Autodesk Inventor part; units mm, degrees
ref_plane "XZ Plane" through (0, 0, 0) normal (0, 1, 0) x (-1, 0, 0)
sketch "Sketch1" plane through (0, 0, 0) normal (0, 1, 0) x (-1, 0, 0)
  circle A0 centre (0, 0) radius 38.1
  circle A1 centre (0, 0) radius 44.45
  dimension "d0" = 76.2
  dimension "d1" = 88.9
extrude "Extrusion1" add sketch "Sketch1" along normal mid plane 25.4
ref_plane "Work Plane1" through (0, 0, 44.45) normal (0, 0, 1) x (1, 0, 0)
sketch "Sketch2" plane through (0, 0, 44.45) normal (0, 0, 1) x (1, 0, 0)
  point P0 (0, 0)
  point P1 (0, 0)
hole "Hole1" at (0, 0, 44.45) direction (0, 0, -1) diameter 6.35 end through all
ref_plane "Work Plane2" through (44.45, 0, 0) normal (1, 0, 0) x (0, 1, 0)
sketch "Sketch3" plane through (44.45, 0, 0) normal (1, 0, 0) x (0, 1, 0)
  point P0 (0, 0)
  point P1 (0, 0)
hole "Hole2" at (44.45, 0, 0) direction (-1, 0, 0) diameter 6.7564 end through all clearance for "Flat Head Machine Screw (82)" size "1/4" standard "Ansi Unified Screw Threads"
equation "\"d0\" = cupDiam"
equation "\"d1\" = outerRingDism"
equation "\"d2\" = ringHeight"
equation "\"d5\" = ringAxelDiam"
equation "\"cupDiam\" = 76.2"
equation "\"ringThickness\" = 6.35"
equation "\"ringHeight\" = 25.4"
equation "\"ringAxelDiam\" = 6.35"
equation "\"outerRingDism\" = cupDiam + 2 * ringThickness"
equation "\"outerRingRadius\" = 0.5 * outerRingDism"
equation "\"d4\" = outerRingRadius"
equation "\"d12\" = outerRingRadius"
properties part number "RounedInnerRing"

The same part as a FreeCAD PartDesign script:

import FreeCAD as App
import Part
import Sketcher

V = App.Vector
Q = App.Units.Quantity

doc = App.newDocument("Part")
body = doc.addObject("PartDesign::Body", "Body")

sketch1 = body.newObject("Sketcher::SketchObject", "Sketch")
sketch1.AttachmentSupport = (doc.getObject("XZ_Plane"), [""])
sketch1.MapMode = "FlatFace"
sketch1.addGeometry(Part.Circle(V(0, 0, 0), V(0, 0, 1), 44.45), False)
sketch1.addGeometry(Part.Circle(V(0, 0, 0), V(0, 0, 1), 38.1), False)
sketch1.addConstraint(Sketcher.Constraint("Coincident", 0, 3, -1, 1))
sketch1.addConstraint(Sketcher.Constraint("Coincident", 1, 3, -1, 1))
sketch1.addConstraint(Sketcher.Constraint("Diameter", 1, Q("3 in")))
sketch1.addConstraint(Sketcher.Constraint("Diameter", 0, Q("3.5 in")))
pad1 = body.newObject("PartDesign::Pad", "Pad")
pad1.Profile = sketch1
pad1.Length = Q("1 in")
pad1.Midplane = True

sketch2 = body.newObject("Sketcher::SketchObject", "Sketch001")
sketch2.AttachmentSupport = (doc.getObject("XY_Plane"), [""])
sketch2.MapMode = "FlatFace"
sketch2.AttachmentOffset = App.Placement(V(0, 0, 1.75 * 25.4), App.Rotation())
sketch2.addGeometry(Part.Circle(V(0, 0, 0), V(0, 0, 1), 3.175), False)
sketch2.addConstraint(Sketcher.Constraint("Coincident", 0, 3, -1, 1))
sketch2.addConstraint(Sketcher.Constraint("Diameter", 0, Q("0.25 in")))
doc.recompute()
hole = body.newObject("PartDesign::Hole", "Hole")
hole.Profile = sketch2
hole.ThreadType = "None"
hole.Diameter = Q("0.25 in")
hole.DepthType = "ThroughAll"

sketch3 = body.newObject("Sketcher::SketchObject", "Sketch002")
sketch3.AttachmentSupport = (doc.getObject("YZ_Plane"), [""])
sketch3.MapMode = "FlatFace"
sketch3.AttachmentOffset = App.Placement(V(0, 0, 1.75 * 25.4), App.Rotation())
sketch3.addGeometry(Part.Circle(V(0, 0, 0), V(0, 0, 1), 3.3782), False)
sketch3.addConstraint(Sketcher.Constraint("Coincident", 0, 3, -1, 1))
sketch3.addConstraint(Sketcher.Constraint("Diameter", 0, Q("0.266 in")))
doc.recompute()
hole2 = body.newObject("PartDesign::Hole", "Hole001")
hole2.Profile = sketch3
hole2.ThreadType = "None"
hole2.Diameter = Q("0.266 in")
hole2.DepthType = "ThroughAll"

doc.recompute()
